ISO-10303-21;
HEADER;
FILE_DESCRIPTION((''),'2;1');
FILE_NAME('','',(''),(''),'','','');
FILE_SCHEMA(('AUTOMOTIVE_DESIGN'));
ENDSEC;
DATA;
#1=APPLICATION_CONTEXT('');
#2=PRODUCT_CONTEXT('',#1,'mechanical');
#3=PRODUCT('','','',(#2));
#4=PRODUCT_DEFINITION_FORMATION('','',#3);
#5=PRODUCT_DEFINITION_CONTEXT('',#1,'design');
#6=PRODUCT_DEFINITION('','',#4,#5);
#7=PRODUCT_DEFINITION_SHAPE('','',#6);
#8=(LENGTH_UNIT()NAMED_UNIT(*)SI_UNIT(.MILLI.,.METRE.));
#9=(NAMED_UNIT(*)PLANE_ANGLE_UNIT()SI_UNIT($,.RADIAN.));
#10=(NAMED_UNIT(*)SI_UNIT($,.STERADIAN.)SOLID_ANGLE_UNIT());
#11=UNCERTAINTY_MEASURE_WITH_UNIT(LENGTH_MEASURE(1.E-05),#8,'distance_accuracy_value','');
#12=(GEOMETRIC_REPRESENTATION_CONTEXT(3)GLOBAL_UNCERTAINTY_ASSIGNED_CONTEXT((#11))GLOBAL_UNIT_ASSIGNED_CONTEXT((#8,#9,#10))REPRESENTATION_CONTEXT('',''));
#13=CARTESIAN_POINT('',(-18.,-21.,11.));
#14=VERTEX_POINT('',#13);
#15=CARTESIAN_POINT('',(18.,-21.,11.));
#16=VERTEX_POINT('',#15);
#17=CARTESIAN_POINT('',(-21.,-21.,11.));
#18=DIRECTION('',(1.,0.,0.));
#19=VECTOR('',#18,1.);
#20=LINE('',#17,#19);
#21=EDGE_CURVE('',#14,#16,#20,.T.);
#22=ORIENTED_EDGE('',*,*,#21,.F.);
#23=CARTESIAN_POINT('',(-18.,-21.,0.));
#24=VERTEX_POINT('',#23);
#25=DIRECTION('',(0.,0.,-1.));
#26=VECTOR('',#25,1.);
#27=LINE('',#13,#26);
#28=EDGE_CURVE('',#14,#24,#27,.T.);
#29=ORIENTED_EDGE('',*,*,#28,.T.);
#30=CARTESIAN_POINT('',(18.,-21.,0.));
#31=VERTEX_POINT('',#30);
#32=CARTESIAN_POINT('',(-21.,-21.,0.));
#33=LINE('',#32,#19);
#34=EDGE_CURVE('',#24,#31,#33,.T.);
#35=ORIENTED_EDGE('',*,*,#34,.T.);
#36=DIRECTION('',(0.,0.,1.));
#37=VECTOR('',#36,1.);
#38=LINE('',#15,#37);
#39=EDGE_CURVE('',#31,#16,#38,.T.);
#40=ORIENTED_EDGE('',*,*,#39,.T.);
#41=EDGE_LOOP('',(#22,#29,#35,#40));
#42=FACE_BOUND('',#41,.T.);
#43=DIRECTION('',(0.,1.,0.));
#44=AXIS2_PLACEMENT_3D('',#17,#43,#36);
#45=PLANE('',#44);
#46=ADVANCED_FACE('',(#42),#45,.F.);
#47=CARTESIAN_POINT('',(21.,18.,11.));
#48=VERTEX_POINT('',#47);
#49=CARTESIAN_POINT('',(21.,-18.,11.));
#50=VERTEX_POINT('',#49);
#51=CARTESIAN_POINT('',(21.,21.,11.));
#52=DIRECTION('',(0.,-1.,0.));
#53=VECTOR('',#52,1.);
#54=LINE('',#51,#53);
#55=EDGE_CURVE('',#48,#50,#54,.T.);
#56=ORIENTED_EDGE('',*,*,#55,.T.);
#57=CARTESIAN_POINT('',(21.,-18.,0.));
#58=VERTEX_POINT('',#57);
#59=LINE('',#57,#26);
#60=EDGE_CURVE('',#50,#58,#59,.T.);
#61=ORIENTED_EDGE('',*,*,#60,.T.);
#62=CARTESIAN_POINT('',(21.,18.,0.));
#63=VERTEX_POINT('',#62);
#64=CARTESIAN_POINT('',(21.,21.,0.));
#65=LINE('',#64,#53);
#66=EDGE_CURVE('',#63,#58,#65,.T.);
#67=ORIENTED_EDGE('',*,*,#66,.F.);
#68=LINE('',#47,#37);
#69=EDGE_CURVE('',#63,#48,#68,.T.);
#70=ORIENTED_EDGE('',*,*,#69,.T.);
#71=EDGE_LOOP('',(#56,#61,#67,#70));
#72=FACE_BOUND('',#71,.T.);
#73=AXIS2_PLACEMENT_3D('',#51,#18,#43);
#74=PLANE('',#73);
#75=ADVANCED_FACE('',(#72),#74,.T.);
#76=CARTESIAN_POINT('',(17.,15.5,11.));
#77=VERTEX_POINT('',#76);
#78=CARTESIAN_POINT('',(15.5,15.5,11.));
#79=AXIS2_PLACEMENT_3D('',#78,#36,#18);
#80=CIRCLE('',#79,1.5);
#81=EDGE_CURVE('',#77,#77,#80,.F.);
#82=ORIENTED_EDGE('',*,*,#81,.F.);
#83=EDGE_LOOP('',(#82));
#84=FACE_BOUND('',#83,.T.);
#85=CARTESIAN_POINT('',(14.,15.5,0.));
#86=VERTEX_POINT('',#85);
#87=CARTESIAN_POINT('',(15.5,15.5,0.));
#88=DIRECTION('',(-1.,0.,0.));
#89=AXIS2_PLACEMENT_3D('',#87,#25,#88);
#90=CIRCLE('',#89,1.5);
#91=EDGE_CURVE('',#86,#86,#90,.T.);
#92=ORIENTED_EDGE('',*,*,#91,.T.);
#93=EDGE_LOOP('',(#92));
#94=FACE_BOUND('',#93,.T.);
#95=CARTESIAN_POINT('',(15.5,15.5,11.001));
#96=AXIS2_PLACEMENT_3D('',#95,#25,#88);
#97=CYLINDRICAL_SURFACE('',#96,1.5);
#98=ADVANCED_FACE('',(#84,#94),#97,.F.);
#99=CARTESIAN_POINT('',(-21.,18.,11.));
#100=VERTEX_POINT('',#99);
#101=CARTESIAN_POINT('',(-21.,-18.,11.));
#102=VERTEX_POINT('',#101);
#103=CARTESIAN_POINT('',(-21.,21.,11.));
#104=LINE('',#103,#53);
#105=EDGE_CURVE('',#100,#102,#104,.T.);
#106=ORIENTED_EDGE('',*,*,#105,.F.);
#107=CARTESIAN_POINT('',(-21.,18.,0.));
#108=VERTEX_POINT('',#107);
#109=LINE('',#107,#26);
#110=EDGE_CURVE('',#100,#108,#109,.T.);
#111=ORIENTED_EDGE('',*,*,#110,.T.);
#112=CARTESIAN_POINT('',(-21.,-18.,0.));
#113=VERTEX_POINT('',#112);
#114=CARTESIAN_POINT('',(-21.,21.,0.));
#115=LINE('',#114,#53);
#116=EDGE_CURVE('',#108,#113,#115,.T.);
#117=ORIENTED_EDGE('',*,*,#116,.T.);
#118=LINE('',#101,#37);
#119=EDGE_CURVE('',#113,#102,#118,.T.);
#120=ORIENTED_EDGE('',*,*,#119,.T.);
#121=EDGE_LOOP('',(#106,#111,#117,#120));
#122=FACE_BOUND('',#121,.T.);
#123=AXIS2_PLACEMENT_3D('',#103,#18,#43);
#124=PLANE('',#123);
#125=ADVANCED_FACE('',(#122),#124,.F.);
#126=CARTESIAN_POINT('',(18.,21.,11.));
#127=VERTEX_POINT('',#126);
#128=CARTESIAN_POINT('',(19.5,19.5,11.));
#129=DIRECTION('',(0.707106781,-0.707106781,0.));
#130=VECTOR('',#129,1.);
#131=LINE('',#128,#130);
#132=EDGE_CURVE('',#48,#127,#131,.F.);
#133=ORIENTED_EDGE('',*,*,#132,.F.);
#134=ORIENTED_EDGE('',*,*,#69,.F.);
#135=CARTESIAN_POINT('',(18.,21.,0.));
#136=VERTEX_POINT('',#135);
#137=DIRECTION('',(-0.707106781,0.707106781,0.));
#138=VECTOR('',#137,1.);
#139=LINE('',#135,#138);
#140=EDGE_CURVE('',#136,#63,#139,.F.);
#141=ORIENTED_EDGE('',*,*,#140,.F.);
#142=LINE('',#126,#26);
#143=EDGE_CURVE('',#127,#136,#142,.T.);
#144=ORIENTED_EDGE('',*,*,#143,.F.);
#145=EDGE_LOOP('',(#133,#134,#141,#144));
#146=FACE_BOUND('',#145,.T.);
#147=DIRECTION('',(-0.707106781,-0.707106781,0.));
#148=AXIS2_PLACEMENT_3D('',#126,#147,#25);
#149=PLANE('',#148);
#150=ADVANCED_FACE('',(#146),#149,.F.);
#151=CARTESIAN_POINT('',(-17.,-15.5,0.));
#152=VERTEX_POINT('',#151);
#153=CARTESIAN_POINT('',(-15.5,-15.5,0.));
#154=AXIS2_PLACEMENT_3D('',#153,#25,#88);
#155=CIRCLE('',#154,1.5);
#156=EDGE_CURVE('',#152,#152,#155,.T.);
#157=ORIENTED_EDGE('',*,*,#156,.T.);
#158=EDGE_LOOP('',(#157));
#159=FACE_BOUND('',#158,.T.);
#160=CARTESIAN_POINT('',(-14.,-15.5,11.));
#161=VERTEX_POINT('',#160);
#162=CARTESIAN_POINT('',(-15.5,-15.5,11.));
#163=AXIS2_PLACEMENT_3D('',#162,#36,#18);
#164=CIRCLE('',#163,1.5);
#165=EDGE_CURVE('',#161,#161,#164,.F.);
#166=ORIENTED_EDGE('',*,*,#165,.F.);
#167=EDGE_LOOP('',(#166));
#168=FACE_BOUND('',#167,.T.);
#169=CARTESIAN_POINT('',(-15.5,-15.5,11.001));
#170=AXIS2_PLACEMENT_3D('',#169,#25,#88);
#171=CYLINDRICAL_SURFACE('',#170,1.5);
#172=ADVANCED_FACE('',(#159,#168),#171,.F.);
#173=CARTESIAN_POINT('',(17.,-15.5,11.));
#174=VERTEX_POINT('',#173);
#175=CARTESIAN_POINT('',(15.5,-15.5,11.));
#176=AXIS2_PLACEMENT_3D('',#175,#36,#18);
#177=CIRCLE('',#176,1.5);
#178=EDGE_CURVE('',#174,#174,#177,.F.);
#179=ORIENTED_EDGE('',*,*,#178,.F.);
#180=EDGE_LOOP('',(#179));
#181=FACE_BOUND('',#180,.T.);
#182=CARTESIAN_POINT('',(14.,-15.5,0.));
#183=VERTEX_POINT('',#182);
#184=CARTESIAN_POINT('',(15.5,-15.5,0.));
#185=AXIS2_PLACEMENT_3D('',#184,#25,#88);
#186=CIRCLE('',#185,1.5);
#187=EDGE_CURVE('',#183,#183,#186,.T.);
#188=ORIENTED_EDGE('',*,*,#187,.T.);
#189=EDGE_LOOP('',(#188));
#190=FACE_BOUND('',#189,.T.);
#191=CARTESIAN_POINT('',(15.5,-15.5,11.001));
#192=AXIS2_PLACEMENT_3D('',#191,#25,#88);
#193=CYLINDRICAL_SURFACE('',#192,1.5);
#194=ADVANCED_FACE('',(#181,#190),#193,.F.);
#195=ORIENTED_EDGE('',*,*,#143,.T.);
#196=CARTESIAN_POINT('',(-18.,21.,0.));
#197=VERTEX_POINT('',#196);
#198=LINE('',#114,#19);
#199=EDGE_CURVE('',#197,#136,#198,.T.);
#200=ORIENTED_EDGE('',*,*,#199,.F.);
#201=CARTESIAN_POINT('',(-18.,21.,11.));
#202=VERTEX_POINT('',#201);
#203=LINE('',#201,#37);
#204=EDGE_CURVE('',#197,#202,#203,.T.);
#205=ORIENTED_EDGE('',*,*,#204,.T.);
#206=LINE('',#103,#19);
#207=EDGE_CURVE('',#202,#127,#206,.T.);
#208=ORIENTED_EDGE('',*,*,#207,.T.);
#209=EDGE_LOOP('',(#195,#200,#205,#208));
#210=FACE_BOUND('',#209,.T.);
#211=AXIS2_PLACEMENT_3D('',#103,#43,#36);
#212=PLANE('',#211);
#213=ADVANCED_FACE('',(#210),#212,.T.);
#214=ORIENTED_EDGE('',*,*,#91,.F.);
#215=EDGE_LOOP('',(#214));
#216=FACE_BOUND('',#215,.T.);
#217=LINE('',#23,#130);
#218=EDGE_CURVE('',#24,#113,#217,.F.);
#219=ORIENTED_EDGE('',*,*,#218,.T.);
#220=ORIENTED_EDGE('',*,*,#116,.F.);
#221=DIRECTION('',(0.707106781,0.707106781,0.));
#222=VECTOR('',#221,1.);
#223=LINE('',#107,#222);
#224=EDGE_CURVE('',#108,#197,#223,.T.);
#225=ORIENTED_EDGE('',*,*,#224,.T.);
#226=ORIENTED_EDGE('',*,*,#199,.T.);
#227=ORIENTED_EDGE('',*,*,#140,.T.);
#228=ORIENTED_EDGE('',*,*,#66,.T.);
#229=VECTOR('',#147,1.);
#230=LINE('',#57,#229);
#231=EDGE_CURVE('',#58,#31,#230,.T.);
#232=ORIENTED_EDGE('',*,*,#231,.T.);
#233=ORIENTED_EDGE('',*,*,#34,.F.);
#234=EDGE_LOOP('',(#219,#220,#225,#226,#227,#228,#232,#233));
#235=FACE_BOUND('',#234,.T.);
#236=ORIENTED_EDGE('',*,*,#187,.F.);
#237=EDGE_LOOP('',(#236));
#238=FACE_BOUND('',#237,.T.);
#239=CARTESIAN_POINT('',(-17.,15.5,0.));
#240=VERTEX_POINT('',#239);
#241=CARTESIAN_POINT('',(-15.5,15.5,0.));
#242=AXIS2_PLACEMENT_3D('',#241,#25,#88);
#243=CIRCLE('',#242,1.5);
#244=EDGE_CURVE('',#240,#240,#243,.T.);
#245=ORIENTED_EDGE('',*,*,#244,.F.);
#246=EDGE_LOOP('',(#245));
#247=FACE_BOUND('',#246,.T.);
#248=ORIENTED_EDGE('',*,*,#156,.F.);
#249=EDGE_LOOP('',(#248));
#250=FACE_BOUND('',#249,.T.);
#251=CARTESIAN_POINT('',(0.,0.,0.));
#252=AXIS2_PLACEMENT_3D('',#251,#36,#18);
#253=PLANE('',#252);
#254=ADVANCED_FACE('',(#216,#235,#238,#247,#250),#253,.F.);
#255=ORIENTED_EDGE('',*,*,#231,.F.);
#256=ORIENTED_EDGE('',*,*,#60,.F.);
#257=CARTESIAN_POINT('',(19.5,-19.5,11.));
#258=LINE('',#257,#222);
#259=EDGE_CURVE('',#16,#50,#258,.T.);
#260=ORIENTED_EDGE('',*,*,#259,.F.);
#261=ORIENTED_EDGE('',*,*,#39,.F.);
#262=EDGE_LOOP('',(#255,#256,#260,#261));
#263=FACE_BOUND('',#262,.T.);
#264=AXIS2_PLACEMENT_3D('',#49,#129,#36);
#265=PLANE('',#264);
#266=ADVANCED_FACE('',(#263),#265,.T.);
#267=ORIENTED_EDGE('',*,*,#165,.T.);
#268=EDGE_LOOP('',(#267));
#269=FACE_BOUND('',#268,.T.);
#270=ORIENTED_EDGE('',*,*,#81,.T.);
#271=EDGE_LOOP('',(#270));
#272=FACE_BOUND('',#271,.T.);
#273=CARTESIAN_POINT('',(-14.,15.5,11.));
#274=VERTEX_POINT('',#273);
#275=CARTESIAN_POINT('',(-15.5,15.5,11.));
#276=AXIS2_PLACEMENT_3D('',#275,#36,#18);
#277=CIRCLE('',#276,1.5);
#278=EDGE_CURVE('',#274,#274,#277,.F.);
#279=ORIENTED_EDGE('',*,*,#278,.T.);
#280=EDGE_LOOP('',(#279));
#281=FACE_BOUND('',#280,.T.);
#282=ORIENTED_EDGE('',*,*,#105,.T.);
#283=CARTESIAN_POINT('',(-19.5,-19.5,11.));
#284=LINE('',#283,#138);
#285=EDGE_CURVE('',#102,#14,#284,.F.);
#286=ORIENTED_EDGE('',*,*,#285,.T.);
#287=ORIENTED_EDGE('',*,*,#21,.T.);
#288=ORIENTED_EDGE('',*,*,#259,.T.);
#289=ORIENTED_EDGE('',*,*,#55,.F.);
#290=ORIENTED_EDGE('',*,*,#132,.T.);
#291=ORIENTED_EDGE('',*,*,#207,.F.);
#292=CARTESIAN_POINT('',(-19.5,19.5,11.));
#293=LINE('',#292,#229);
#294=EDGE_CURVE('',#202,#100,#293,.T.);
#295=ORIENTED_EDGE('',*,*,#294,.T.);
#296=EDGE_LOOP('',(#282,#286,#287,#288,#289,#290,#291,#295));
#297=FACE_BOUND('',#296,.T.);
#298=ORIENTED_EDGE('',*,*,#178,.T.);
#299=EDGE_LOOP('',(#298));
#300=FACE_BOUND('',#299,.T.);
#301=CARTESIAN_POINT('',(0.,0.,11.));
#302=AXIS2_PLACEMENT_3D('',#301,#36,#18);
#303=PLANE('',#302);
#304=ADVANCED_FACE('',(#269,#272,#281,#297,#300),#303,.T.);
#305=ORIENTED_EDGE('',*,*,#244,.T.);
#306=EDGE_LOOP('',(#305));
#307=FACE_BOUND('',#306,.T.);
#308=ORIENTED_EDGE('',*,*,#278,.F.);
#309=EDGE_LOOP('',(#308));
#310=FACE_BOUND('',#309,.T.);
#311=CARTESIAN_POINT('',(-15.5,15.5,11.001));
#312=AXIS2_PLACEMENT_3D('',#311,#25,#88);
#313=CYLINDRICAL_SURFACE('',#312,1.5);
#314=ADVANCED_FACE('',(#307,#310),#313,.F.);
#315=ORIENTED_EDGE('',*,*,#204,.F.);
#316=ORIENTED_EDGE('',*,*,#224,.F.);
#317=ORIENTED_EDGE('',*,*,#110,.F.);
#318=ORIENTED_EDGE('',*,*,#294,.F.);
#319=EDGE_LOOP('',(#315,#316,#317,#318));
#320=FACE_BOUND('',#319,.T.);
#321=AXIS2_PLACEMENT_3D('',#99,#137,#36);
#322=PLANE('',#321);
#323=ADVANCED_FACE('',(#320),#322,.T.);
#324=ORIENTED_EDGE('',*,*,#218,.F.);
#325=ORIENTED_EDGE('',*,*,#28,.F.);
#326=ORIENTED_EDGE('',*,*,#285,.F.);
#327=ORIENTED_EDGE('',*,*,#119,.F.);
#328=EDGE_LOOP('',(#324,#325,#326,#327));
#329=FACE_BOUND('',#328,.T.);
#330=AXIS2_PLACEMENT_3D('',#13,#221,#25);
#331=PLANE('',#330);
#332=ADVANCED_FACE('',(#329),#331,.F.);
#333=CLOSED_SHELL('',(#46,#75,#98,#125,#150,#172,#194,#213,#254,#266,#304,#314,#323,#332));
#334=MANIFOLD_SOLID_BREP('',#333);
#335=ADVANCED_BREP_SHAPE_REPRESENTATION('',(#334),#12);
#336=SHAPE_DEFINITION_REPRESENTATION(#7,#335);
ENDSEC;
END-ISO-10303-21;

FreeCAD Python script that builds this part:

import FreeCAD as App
import Part
import Sketcher

V = App.Vector
Q = App.Units.Quantity


def edges_at(feature, points):
    """Names of the edges that pass closest to the given points."""
    edges = feature.Shape.Edges
    near = lambda p: min(range(len(edges)), key=lambda i: edges[i].distToShape(Part.Vertex(*p))[0])
    return sorted({f"Edge{near(p) + 1}" for p in points})


def add_polygon(sketch, points):
    """Adds a closed chain of lines whose ends are joined by coincident constraints."""
    first, n = sketch.GeometryCount, len(points)
    for a, b in zip(points, points[1:] + points[:1]):
        sketch.addGeometry(Part.LineSegment(App.Vector(*a, 0), App.Vector(*b, 0)), False)
    for i in range(n):
        sketch.addConstraint(Sketcher.Constraint("Coincident", first + i, 2, first + (i + 1) % n, 1))

doc = App.newDocument("Part")
params = doc.addObject("Spreadsheet::Sheet", "Params")
for row, (alias, value) in enumerate([
    ("sketch1_width", "42 mm"),
    ("pad1_length", "11 mm"),
    ("chamfer_size", "3 mm"),
    ("sketch2_diameter", "22.5 mm"),
    ("pad2_length", "0.5 mm"),
    ("sketch3_diameter", "3 mm"),
    ("sketch4_diameter", "3 mm"),
    ("sketch5_diameter", "3 mm"),
    ("sketch6_diameter", "3 mm"),
], start=1):
    params.set(f"A{row}", alias)
    params.set(f"B{row}", "=" + value)
    params.setAlias(f"B{row}", alias)

body = doc.addObject("PartDesign::Body", "Body")

# Sketch on XY plane
sketch1 = body.newObject("Sketcher::SketchObject", "Sketch")
sketch1.AttachmentSupport = (doc.getObject("XY_Plane"), [""])
sketch1.MapMode = "FlatFace"
add_polygon(sketch1, [(-21, 21), (-21, -21), (21, -21), (21, 21)])  # lines 0-3
sketch1.addConstraint([
    Sketcher.Constraint("Vertical", 0),
    Sketcher.Constraint("Horizontal", 1),
    Sketcher.Constraint("Vertical", 2),
    Sketcher.Constraint("Horizontal", 3),
    Sketcher.Constraint("Symmetric", 0, 2, 2, 2, -1, 1),
    Sketcher.Constraint("Equal", 3, 0),
    Sketcher.Constraint("DistanceX", 1, 1, 1, 2, Q("42 mm")),
])
sketch1.setExpression("Constraints[10]", "Params.sketch1_width")
pad1 = body.newObject("PartDesign::Pad", "Pad")
pad1.Profile = sketch1
pad1.setExpression("Length", "Params.pad1_length")
doc.recompute()

chamfer = body.newObject("PartDesign::Chamfer", "Chamfer")
chamfer.Base = (pad1, edges_at(pad1, [
    (-21, 21, 5.5),
    (21, 21, 5.5),
    (21, -21, 5.5),
    (-21, -21, 5.5),
]))
chamfer.setExpression("Size", "Params.chamfer_size")

# Sketch on XY plane
sketch2 = body.newObject("Sketcher::SketchObject", "Sketch001")
sketch2.AttachmentSupport = (doc.getObject("XY_Plane"), [""])
sketch2.MapMode = "FlatFace"
sketch2.addGeometry(Part.Circle(V(0, 0, 0), V(0, 0, 1), 11), False)
sketch2.addConstraint([
    Sketcher.Constraint("Coincident", 0, 3, -1, 1),
    Sketcher.Constraint("Diameter", 0, Q("22.5 mm")),
])
sketch2.setExpression("Constraints[1]", "Params.sketch2_diameter")
pad2 = body.newObject("PartDesign::Pad", "Pad001")
pad2.Profile = sketch2
pad2.setExpression("Length", "Params.pad2_length")

# Sketch on XY plane
sketch3 = body.newObject("Sketcher::SketchObject", "Sketch002")
sketch3.AttachmentSupport = (doc.getObject("XY_Plane"), [""])
sketch3.MapMode = "FlatFace"
sketch3.addGeometry(Part.Circle(V(-15.5, 15.5, 0), V(0, 0, 1), 1.5), False)
sketch3.addConstraint([
    Sketcher.Constraint("Diameter", 0, Q("3 mm")),
    Sketcher.Constraint("DistanceX", 0, 3, -1, 1, Q("15.5 mm")),
    Sketcher.Constraint("DistanceY", -1, 1, 0, 3, Q("15.5 mm")),
])
sketch3.setExpression("Constraints[0]", "Params.sketch3_diameter")
pocket1 = body.newObject("PartDesign::Pocket", "Pocket")
pocket1.Profile = sketch3
pocket1.Type = "UpToFirst"
pocket1.Reversed = True

# Sketch on XY plane
sketch4 = body.newObject("Sketcher::SketchObject", "Sketch003")
sketch4.AttachmentSupport = (doc.getObject("XY_Plane"), [""])
sketch4.MapMode = "FlatFace"
sketch4.addGeometry(Part.Circle(V(15.5, 15.5, 0), V(0, 0, 1), 1.5), False)
sketch4.addConstraint([
    Sketcher.Constraint("Diameter", 0, Q("3 mm")),
    Sketcher.Constraint("DistanceX", -1, 1, 0, 3, Q("15.5 mm")),
    Sketcher.Constraint("DistanceY", -1, 1, 0, 3, Q("15.5 mm")),
])
sketch4.setExpression("Constraints[0]", "Params.sketch4_diameter")
pocket2 = body.newObject("PartDesign::Pocket", "Pocket001")
pocket2.Profile = sketch4
pocket2.Type = "UpToFirst"
pocket2.Reversed = True

# Sketch on XY plane
sketch5 = body.newObject("Sketcher::SketchObject", "Sketch004")
sketch5.AttachmentSupport = (doc.getObject("XY_Plane"), [""])
sketch5.MapMode = "FlatFace"
sketch5.addGeometry(Part.Circle(V(15.5, -15.5, 0), V(0, 0, 1), 1.5), False)
sketch5.addConstraint([
    Sketcher.Constraint("Diameter", 0, Q("3 mm")),
    Sketcher.Constraint("DistanceX", -1, 1, 0, 3, Q("15.5 mm")),
    Sketcher.Constraint("DistanceY", 0, 3, -1, 1, Q("15.5 mm")),
])
sketch5.setExpression("Constraints[0]", "Params.sketch5_diameter")
pocket3 = body.newObject("PartDesign::Pocket", "Pocket002")
pocket3.Profile = sketch5
pocket3.Type = "UpToFirst"
pocket3.Reversed = True

# Sketch on XY plane
sketch6 = body.newObject("Sketcher::SketchObject", "Sketch005")
sketch6.AttachmentSupport = (doc.getObject("XY_Plane"), [""])
sketch6.MapMode = "FlatFace"
sketch6.addGeometry(Part.Circle(V(-15.5, -15.5, 0), V(0, 0, 1), 1.5), False)
sketch6.addConstraint([
    Sketcher.Constraint("Diameter", 0, Q("3 mm")),
    Sketcher.Constraint("DistanceX", 0, 3, -1, 1, Q("15.5 mm")),
    Sketcher.Constraint("DistanceY", 0, 3, -1, 1, Q("15.5 mm")),
])
sketch6.setExpression("Constraints[0]", "Params.sketch6_diameter")
pocket4 = body.newObject("PartDesign::Pocket", "Pocket003")
pocket4.Profile = sketch6
pocket4.Type = "UpToFirst"
pocket4.Reversed = True

doc.recompute()
